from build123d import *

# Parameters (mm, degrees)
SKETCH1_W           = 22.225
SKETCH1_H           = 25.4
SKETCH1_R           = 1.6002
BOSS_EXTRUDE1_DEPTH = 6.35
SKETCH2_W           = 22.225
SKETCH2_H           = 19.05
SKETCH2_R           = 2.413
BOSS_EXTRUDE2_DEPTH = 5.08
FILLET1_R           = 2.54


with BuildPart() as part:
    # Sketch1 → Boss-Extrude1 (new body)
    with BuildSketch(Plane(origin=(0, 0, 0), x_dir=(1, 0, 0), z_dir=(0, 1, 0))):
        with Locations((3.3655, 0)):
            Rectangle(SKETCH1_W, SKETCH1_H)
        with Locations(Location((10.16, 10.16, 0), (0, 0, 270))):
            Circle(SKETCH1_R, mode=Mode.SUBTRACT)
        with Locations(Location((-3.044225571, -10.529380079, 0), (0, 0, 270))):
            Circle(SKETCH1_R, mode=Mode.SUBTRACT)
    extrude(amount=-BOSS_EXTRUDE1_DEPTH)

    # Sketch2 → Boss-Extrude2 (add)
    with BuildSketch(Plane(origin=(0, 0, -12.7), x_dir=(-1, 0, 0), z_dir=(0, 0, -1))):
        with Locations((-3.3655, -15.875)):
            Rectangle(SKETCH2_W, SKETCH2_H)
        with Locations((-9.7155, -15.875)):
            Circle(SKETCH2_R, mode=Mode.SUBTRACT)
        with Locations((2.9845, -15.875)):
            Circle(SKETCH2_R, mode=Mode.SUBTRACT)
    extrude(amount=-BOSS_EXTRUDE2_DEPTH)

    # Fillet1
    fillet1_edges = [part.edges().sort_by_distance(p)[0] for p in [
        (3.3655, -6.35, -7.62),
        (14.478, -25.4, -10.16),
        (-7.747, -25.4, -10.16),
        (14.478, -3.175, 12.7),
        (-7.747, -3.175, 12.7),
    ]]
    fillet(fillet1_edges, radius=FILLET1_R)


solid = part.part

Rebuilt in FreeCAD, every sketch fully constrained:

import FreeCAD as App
import Part
import Sketcher
from FreeCAD import Vector
Q = App.Units.Quantity


def edges_at(feature, points):
    """Names of the edges that pass closest to the given points."""
    edges = feature.Shape.Edges
    near = lambda p: min(range(len(edges)), key=lambda i: edges[i].distToShape(Part.Vertex(*p))[0])
    return sorted({f"Edge{near(p) + 1}" for p in points})

doc = App.newDocument("Part")
body = doc.addObject("PartDesign::Body", "Body")

# Sketch on XZ plane
sketch1 = body.newObject("Sketcher::SketchObject", "Sketch")
sketch1.AttachmentSupport = (doc.getObject("XZ_Plane"), [""])
sketch1.MapMode = "FlatFace"
sketch1.addGeometry([
    Part.LineSegment(Vector(-7.7, -12.7, 0), Vector(-7.7, 12.7, 0)),  # 0
    Part.LineSegment(Vector(-7.7, 12.7, 0), Vector(14.5, 12.7, 0)),  # 1
    Part.LineSegment(Vector(14.5, 12.7, 0), Vector(14.5, -12.7, 0)),  # 2
    Part.LineSegment(Vector(14.5, -12.7, 0), Vector(-7.7, -12.7, 0)),  # 3
    Part.Circle(Vector(-3, 10.5, 0), Vector(0, 0, 1), 1.6),  # 4
    Part.Circle(Vector(10.2, -10.2, 0), Vector(0, 0, 1), 1.6),  # 5
], False)
sketch1.addConstraint([
    Sketcher.Constraint("Coincident", 0, 2, 1, 1),
    Sketcher.Constraint("Coincident", 1, 2, 2, 1),
    Sketcher.Constraint("Coincident", 2, 2, 3, 1),
    Sketcher.Constraint("Coincident", 3, 2, 0, 1),
    Sketcher.Constraint("Vertical", 0),
    Sketcher.Constraint("Horizontal", 1),
    Sketcher.Constraint("Vertical", 2),
    Sketcher.Constraint("Horizontal", 3),
    Sketcher.Constraint("Equal", 4, 5),
    Sketcher.Constraint("DistanceY", 0, 1, 0, 2, Q("1 in")),
    Sketcher.Constraint("Diameter", 4, Q("0.126 in")),
    Sketcher.Constraint("DistanceX", -1, 1, 5, 3, Q("0.4 in")),
    Sketcher.Constraint("DistanceY", 5, 3, -1, 1, Q("0.4 in")),
    Sketcher.Constraint("DistanceY", -1, 1, 0, 2, Q("0.5 in")),
    Sketcher.Constraint("DistanceX", 1, 1, 1, 2, Q("0.875 in")),
    Sketcher.Constraint("DistanceX", -1, 1, 1, 2, Q("0.57 in")),
    Sketcher.Constraint("DistanceY", -1, 1, 4, 3, 10.52938),
    Sketcher.Constraint("DistanceX", 4, 3, -1, 1, 3.044226),
])
pad1 = body.newObject("PartDesign::Pad", "Pad")
pad1.Profile = sketch1
pad1.Length = Q("0.25 in")

# Sketch on XY plane
sketch2 = body.newObject("Sketcher::SketchObject", "Sketch001")
sketch2.AttachmentSupport = (doc.getObject("XY_Plane"), [""])
sketch2.MapMode = "FlatFace"
sketch2.AttachmentOffset = App.Placement(Vector(0, 0, -0.5 * 25.4), App.Rotation())
sketch2.addGeometry([
    Part.LineSegment(Vector(14.5, -6.3, 0), Vector(14.5, -25.4, 0)),  # 0
    Part.LineSegment(Vector(14.5, -25.4, 0), Vector(-7.7, -25.4, 0)),  # 1
    Part.LineSegment(Vector(-7.7, -25.4, 0), Vector(-7.7, -6.3, 0)),  # 2
    Part.LineSegment(Vector(-7.7, -6.3, 0), Vector(14.5, -6.3, 0)),  # 3
    Part.Circle(Vector(9.7, -15.9, 0), Vector(0, 0, 1), 2.4),  # 4
    Part.Circle(Vector(-3, -15.9, 0), Vector(0, 0, 1), 2.4),  # 5
], False)
sketch2.addConstraint([
    Sketcher.Constraint("Coincident", 0, 2, 1, 1),
    Sketcher.Constraint("Coincident", 1, 2, 2, 1),
    Sketcher.Constraint("Coincident", 2, 2, 3, 1),
    Sketcher.Constraint("Coincident", 3, 2, 0, 1),
    Sketcher.Constraint("Vertical", 0),
    Sketcher.Constraint("Horizontal", 1),
    Sketcher.Constraint("Vertical", 2),
    Sketcher.Constraint("Horizontal", 3),
    Sketcher.Constraint("Equal", 4, 5),
    Sketcher.Constraint("Horizontal", 4, 3, 5, 3),
    Sketcher.Constraint("Diameter", 4, Q("0.19 in")),
    Sketcher.Constraint("DistanceY", 0, 2, -1, 1, Q("1 in")),
    Sketcher.Constraint("DistanceY", 0, 2, 0, 1, Q("0.75 in")),
    Sketcher.Constraint("DistanceX", 5, 3, 4, 3, Q("0.5 in")),
    Sketcher.Constraint("DistanceX", 1, 2, 1, 1, Q("0.875 in")),
    Sketcher.Constraint("DistanceX", -1, 1, 0, 2, Q("0.57 in")),
    Sketcher.Constraint("DistanceY", 4, 3, -1, 1, Q("0.625 in")),
    Sketcher.Constraint("DistanceX", 4, 3, 0, 2, Q("0.1875 in")),
])
pad2 = body.newObject("PartDesign::Pad", "Pad001")
pad2.Profile = sketch2
pad2.Length = Q("0.2 in")
doc.recompute()

fillet = body.newObject("PartDesign::Fillet", "Fillet")
fillet.Base = (pad2, edges_at(pad2, [
    (3.365, -6.35, -7.62),
    (14.478, -25.4, -10.16),
    (-7.747, -25.4, -10.16),
    (14.478, -3.175, 12.7),
    (-7.747, -3.175, 12.7),
]))
fillet.Radius = Q("0.1 in")

doc.recompute()
